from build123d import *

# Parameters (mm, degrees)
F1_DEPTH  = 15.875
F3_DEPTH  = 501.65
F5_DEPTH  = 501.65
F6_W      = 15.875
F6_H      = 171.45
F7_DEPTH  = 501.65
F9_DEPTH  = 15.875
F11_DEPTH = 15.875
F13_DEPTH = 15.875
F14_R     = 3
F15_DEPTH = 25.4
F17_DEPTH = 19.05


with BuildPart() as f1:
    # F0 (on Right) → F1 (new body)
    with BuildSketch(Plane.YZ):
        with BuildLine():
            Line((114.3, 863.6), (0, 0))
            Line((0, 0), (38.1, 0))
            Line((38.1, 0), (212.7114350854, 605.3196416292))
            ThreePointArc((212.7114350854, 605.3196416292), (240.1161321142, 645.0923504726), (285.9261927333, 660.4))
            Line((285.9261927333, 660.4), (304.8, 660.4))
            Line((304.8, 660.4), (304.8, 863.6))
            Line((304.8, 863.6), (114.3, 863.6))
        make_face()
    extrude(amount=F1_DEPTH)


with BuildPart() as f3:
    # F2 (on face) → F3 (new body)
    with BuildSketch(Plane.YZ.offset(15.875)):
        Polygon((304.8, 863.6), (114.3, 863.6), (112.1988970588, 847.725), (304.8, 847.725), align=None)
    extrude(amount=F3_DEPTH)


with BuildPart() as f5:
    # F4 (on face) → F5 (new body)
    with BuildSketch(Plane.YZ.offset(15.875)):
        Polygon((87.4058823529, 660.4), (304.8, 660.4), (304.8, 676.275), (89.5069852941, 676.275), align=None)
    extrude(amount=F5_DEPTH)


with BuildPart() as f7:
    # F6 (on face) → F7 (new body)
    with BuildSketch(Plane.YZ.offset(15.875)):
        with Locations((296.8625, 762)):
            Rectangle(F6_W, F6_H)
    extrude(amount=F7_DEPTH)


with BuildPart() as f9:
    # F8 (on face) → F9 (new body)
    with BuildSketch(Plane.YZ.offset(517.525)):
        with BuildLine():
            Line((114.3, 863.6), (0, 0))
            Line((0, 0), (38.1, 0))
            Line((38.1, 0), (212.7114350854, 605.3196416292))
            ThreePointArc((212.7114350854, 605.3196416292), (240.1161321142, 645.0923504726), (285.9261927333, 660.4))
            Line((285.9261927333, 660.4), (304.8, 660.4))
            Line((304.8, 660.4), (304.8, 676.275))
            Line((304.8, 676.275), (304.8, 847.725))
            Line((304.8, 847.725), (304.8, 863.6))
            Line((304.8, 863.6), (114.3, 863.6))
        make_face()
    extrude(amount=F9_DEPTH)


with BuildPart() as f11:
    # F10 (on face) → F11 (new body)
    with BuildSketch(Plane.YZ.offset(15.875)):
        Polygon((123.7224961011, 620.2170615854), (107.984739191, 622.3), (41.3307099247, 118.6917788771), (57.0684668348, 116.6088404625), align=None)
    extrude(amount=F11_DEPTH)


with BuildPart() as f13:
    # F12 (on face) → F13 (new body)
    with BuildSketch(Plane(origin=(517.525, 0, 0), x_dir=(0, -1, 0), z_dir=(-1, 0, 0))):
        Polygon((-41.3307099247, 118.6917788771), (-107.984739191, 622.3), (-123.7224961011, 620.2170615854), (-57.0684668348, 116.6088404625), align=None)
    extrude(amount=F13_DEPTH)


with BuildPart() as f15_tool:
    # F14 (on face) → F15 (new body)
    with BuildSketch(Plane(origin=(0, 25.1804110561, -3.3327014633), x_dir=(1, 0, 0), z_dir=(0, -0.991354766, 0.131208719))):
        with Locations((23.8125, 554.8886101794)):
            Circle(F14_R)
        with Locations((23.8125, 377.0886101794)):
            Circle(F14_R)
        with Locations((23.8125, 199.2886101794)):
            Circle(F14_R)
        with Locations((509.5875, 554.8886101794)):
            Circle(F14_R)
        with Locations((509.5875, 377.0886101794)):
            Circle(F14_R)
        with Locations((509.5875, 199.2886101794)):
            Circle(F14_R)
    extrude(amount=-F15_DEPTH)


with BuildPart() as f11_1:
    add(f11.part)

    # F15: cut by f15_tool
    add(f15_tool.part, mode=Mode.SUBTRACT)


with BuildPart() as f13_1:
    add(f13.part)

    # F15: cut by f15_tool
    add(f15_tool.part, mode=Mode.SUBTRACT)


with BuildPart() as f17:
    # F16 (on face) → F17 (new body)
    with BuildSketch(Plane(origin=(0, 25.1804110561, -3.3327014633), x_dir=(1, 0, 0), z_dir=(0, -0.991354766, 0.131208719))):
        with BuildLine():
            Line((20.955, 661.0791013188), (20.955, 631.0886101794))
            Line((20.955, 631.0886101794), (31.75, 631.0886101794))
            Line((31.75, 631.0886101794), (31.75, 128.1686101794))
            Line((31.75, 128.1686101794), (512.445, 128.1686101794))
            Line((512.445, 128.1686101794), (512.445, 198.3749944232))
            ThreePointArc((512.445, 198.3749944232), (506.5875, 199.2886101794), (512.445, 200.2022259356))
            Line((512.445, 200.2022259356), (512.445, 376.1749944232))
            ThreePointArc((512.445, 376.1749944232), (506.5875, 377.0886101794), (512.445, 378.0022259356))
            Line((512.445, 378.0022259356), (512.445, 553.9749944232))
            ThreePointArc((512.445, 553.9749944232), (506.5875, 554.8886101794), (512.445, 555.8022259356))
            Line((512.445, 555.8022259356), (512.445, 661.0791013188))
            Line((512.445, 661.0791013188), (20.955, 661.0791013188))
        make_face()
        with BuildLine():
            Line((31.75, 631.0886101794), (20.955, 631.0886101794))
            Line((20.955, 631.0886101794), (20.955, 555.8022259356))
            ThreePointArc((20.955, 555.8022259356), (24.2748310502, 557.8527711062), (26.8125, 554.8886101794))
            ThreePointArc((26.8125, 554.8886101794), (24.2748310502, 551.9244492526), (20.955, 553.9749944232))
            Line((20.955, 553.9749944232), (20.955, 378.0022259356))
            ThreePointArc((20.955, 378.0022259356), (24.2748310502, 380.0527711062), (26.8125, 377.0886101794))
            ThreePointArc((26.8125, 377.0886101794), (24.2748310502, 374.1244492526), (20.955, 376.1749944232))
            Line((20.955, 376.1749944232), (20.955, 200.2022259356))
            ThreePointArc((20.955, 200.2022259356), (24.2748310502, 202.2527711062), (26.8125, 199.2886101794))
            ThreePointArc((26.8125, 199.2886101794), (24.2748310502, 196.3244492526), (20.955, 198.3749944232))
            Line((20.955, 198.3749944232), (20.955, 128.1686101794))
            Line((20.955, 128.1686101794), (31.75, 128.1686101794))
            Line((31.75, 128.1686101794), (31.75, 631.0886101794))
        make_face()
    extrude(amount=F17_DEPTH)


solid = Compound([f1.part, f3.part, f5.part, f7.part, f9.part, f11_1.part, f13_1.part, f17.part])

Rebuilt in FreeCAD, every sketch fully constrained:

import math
import FreeCAD as App
import Part
import Sketcher
Q = App.Units.Quantity


def add_polygon(sketch, points):
    """Adds a closed chain of lines whose ends are joined by coincident constraints."""
    first, n = sketch.GeometryCount, len(points)
    for a, b in zip(points, points[1:] + points[:1]):
        sketch.addGeometry(Part.LineSegment(App.Vector(*a, 0), App.Vector(*b, 0)), False)
    for i in range(n):
        sketch.addConstraint(Sketcher.Constraint("Coincident", first + i, 2, first + (i + 1) % n, 1))

doc = App.newDocument("Part")
params = doc.addObject("Spreadsheet::Sheet", "Params")
for row, (alias, value) in enumerate([
    ("sketch1_radius", "3 in"),
    ("sketch1_height", "8 in"),
    ("sketch1_width", "1.5 in"),
    ("sketch1_width2", "7.5 in"),
    ("pad1_length", "0.625 in"),
    ("sketch2_width", "7.5 in"),
    ("sketch2_height", "0.625 in"),
    ("pad2_length", "19.75 in"),
    ("sketch3_height", "0.625 in"),
    ("pad3_length", "19.75 in"),
    ("sketch4_height", "6.75 in"),
    ("sketch4_width", "0.625 in"),
    ("pad4_length", "19.75 in"),
    ("sketch5_radius", "3 in"),
    ("sketch5_height", "8 in"),
    ("sketch5_width", "1.5 in"),
    ("sketch5_width2", "7.5 in"),
    ("pad5_length", "0.625 in"),
    ("sketch6_length", "20 in"),
    ("sketch6_length2", "0.625 in"),
    ("pad6_length", "0.625 in"),
    ("sketch7_length", "20 in"),
    ("sketch7_length2", "0.625 in"),
    ("pad7_length", "0.625 in"),
    ("pad8_length", "1 in"),
    ("sketch9_width", "19.35 in"),
    ("pad9_length", "0.75 in"),
], start=1):
    params.set(f"A{row}", alias)
    params.set(f"B{row}", "=" + value)
    params.setAlias(f"B{row}", alias)

body = doc.addObject("PartDesign::Body", "Body")

# Sketch on YZ plane
sketch1 = body.newObject("Sketcher::SketchObject", "Sketch")
sketch1.AttachmentSupport = (doc.getObject("YZ_Plane"), [""])
sketch1.MapMode = "FlatFace"
sketch1.addGeometry(Part.LineSegment(App.Vector(114, 864, 0), App.Vector(0, 0, 0)), False)
sketch1.addGeometry(Part.LineSegment(App.Vector(0, 0, 0), App.Vector(38, 0, 0)), False)
sketch1.addGeometry(Part.LineSegment(App.Vector(38, 0, 0), App.Vector(213, 605, 0)), False)
sketch1.addGeometry(Part.ArcOfCircle(Part.Circle(App.Vector(286, 584, 0), App.Vector(0, 0, 1), 76), math.radians(90), math.radians(164)), False)
sketch1.addGeometry(Part.LineSegment(App.Vector(286, 660, 0), App.Vector(305, 660, 0)), False)
sketch1.addGeometry(Part.LineSegment(App.Vector(305, 660, 0), App.Vector(305, 864, 0)), False)
sketch1.addGeometry(Part.LineSegment(App.Vector(305, 864, 0), App.Vector(114, 864, 0)), False)
sketch1.addConstraint(Sketcher.Constraint("Coincident", 0, 2, 1, 1))
sketch1.addConstraint(Sketcher.Constraint("Coincident", 1, 2, 2, 1))
sketch1.addConstraint(Sketcher.Constraint("Tangent", 2, 2, 3, 2))
sketch1.addConstraint(Sketcher.Constraint("Tangent", 3, 1, 4, 1))
sketch1.addConstraint(Sketcher.Constraint("Coincident", 4, 2, 5, 1))
sketch1.addConstraint(Sketcher.Constraint("Coincident", 5, 2, 6, 1))
sketch1.addConstraint(Sketcher.Constraint("Coincident", 6, 2, 0, 1))
sketch1.addConstraint(Sketcher.Constraint("Horizontal", 1))
sketch1.addConstraint(Sketcher.Constraint("Horizontal", 4))
sketch1.addConstraint(Sketcher.Constraint("Vertical", 5))
sketch1.addConstraint(Sketcher.Constraint("Horizontal", 6))
sketch1.addConstraint(Sketcher.Constraint("Coincident", 0, 2, -1, 1))
sketch1.addConstraint(Sketcher.Constraint("Radius", 3, Q("3 in")))
sketch1.addConstraint(Sketcher.Constraint("DistanceY", 5, 1, 5, 2, Q("8 in")))
sketch1.addConstraint(Sketcher.Constraint("DistanceX", 1, 1, 1, 2, Q("1.5 in")))
sketch1.addConstraint(Sketcher.Constraint("DistanceX", 6, 2, 6, 1, Q("7.5 in")))
sketch1.addConstraint(Sketcher.Constraint("DistanceY", -1, 1, 3, 3, Q("23 in")))
sketch1.addConstraint(Sketcher.Constraint("DistanceX", -1, 1, 4, 2, Q("12 in")))
sketch1.addConstraint(Sketcher.Constraint("Distance", 2, Q("630.000811 mm")))
sketch1.setExpression("Constraints[12]", "Params.sketch1_radius")
sketch1.setExpression("Constraints[13]", "Params.sketch1_height")
sketch1.setExpression("Constraints[14]", "Params.sketch1_width")
sketch1.setExpression("Constraints[15]", "Params.sketch1_width2")
pad1 = body.newObject("PartDesign::Pad", "Pad")
pad1.Profile = sketch1
pad1.setExpression("Length", "Params.pad1_length")
body2 = doc.addObject("PartDesign::Body", "Body001")

# Sketch on YZ plane
sketch2 = body2.newObject("Sketcher::SketchObject", "Sketch001")
sketch2.AttachmentSupport = (doc.getObject("YZ_Plane001"), [""])
sketch2.MapMode = "FlatFace"
sketch2.AttachmentOffset = App.Placement(App.Vector(0, 0, 0.625 * 25.4), App.Rotation())
add_polygon(sketch2, [(305, 864), (114, 864), (112, 848), (305, 848)])  # lines 0-3
sketch2.addConstraint(Sketcher.Constraint("Horizontal", 0))
sketch2.addConstraint(Sketcher.Constraint("Horizontal", 2))
sketch2.addConstraint(Sketcher.Constraint("Vertical", 3))
sketch2.addConstraint(Sketcher.Constraint("DistanceX", 0, 2, 0, 1, Q("7.5 in")))
sketch2.addConstraint(Sketcher.Constraint("DistanceY", -1, 1, 0, 2, Q("34 in")))
sketch2.addConstraint(Sketcher.Constraint("DistanceX", -1, 1, 2, 2, Q("12 in")))
sketch2.addConstraint(Sketcher.Constraint("DistanceY", 3, 1, 3, 2, Q("0.625 in")))
sketch2.addConstraint(Sketcher.Constraint("Distance", 1, Q("16.01344 mm")))
sketch2.setExpression("Constraints[7]", "Params.sketch2_width")
sketch2.setExpression("Constraints[10]", "Params.sketch2_height")
pad2 = body2.newObject("PartDesign::Pad", "Pad001")
pad2.Profile = sketch2
pad2.setExpression("Length", "Params.pad2_length")
body3 = doc.addObject("PartDesign::Body", "Body002")

# Sketch on YZ plane
sketch3 = body3.newObject("Sketcher::SketchObject", "Sketch002")
sketch3.AttachmentSupport = (doc.getObject("YZ_Plane002"), [""])
sketch3.MapMode = "FlatFace"
sketch3.AttachmentOffset = App.Placement(App.Vector(0, 0, 0.625 * 25.4), App.Rotation())
add_polygon(sketch3, [(87, 660), (305, 660), (305, 676), (90, 676)])  # lines 0-3
sketch3.addConstraint(Sketcher.Constraint("Horizontal", 0))
sketch3.addConstraint(Sketcher.Constraint("Vertical", 1))
sketch3.addConstraint(Sketcher.Constraint("Horizontal", 2))
sketch3.addConstraint(Sketcher.Constraint("DistanceX", -1, 1, 0, 2, Q("12 in")))
sketch3.addConstraint(Sketcher.Constraint("DistanceY", -1, 1, 0, 2, Q("26 in")))
sketch3.addConstraint(Sketcher.Constraint("DistanceY", 1, 1, 1, 2, Q("0.625 in")))
sketch3.addConstraint(Sketcher.Constraint("Distance", 3, Q("16.01344 mm")))
sketch3.addConstraint(Sketcher.Constraint("DistanceX", 0, 1, 0, 2, Q("217.394118 mm")))
sketch3.setExpression("Constraints[9]", "Params.sketch3_height")
pad3 = body3.newObject("PartDesign::Pad", "Pad002")
pad3.Profile = sketch3
pad3.setExpression("Length", "Params.pad3_length")
body4 = doc.addObject("PartDesign::Body", "Body003")

# Sketch on YZ plane
sketch4 = body4.newObject("Sketcher::SketchObject", "Sketch003")
sketch4.AttachmentSupport = (doc.getObject("YZ_Plane003"), [""])
sketch4.MapMode = "FlatFace"
sketch4.AttachmentOffset = App.Placement(App.Vector(0, 0, 0.625 * 25.4), App.Rotation())
add_polygon(sketch4, [(289, 848), (289, 676), (305, 676), (305, 848)])  # lines 0-3
sketch4.addConstraint(Sketcher.Constraint("Vertical", 0))
sketch4.addConstraint(Sketcher.Constraint("Horizontal", 1))
sketch4.addConstraint(Sketcher.Constraint("Vertical", 2))
sketch4.addConstraint(Sketcher.Constraint("Horizontal", 3))
sketch4.addConstraint(Sketcher.Constraint("DistanceX", -1, 1, 1, 2, Q("12 in")))
sketch4.addConstraint(Sketcher.Constraint("DistanceY", 0, 2, 0, 1, Q("6.75 in")))
sketch4.addConstraint(Sketcher.Constraint("DistanceX", 1, 1, 1, 2, Q("0.625 in")))
sketch4.addConstraint(Sketcher.Constraint("DistanceY", -1, 1, 0, 2, Q("26.625 in")))
sketch4.setExpression("Constraints[9]", "Params.sketch4_height")
sketch4.setExpression("Constraints[10]", "Params.sketch4_width")
pad4 = body4.newObject("PartDesign::Pad", "Pad003")
pad4.Profile = sketch4
pad4.setExpression("Length", "Params.pad4_length")
body5 = doc.addObject("PartDesign::Body", "Body004")

# Sketch on YZ plane
sketch5 = body5.newObject("Sketcher::SketchObject", "Sketch004")
sketch5.AttachmentSupport = (doc.getObject("YZ_Plane004"), [""])
sketch5.MapMode = "FlatFace"
sketch5.AttachmentOffset = App.Placement(App.Vector(0, 0, 20.375 * 25.4), App.Rotation())
sketch5.addGeometry(Part.LineSegment(App.Vector(114, 864, 0), App.Vector(0, 0, 0)), False)
sketch5.addGeometry(Part.LineSegment(App.Vector(0, 0, 0), App.Vector(38, 0, 0)), False)
sketch5.addGeometry(Part.LineSegment(App.Vector(38, 0, 0), App.Vector(213, 605, 0)), False)
sketch5.addGeometry(Part.ArcOfCircle(Part.Circle(App.Vector(286, 584, 0), App.Vector(0, 0, 1), 76), math.radians(90), math.radians(164)), False)
sketch5.addGeometry(Part.LineSegment(App.Vector(286, 660, 0), App.Vector(305, 660, 0)), False)
sketch5.addGeometry(Part.LineSegment(App.Vector(305, 660, 0), App.Vector(305, 864, 0)), False)
sketch5.addGeometry(Part.LineSegment(App.Vector(305, 864, 0), App.Vector(114, 864, 0)), False)
sketch5.addConstraint(Sketcher.Constraint("Coincident", 0, 2, 1, 1))
sketch5.addConstraint(Sketcher.Constraint("Coincident", 1, 2, 2, 1))
sketch5.addConstraint(Sketcher.Constraint("Tangent", 2, 2, 3, 2))
sketch5.addConstraint(Sketcher.Constraint("Tangent", 3, 1, 4, 1))
sketch5.addConstraint(Sketcher.Constraint("Coincident", 4, 2, 5, 1))
sketch5.addConstraint(Sketcher.Constraint("Coincident", 5, 2, 6, 1))
sketch5.addConstraint(Sketcher.Constraint("Coincident", 6, 2, 0, 1))
sketch5.addConstraint(Sketcher.Constraint("Horizontal", 1))
sketch5.addConstraint(Sketcher.Constraint("Horizontal", 4))
sketch5.addConstraint(Sketcher.Constraint("Vertical", 5))
sketch5.addConstraint(Sketcher.Constraint("Horizontal", 6))
sketch5.addConstraint(Sketcher.Constraint("Coincident", 0, 2, -1, 1))
sketch5.addConstraint(Sketcher.Constraint("Radius", 3, Q("3 in")))
sketch5.addConstraint(Sketcher.Constraint("DistanceY", 5, 1, 5, 2, Q("8 in")))
sketch5.addConstraint(Sketcher.Constraint("DistanceX", 1, 1, 1, 2, Q("1.5 in")))
sketch5.addConstraint(Sketcher.Constraint("DistanceX", 6, 2, 6, 1, Q("7.5 in")))
sketch5.addConstraint(Sketcher.Constraint("DistanceY", -1, 1, 3, 3, Q("23 in")))
sketch5.addConstraint(Sketcher.Constraint("DistanceX", -1, 1, 4, 2, Q("12 in")))
sketch5.addConstraint(Sketcher.Constraint("Distance", 2, Q("630.000811 mm")))
sketch5.setExpression("Constraints[12]", "Params.sketch5_radius")
sketch5.setExpression("Constraints[13]", "Params.sketch5_height")
sketch5.setExpression("Constraints[14]", "Params.sketch5_width")
sketch5.setExpression("Constraints[15]", "Params.sketch5_width2")
pad5 = body5.newObject("PartDesign::Pad", "Pad004")
pad5.Profile = sketch5
pad5.setExpression("Length", "Params.pad5_length")
body6 = doc.addObject("PartDesign::Body", "Body005")

# Sketch on YZ plane
sketch6 = body6.newObject("Sketcher::SketchObject", "Sketch005")
sketch6.AttachmentSupport = (doc.getObject("YZ_Plane005"), [""])
sketch6.MapMode = "FlatFace"
sketch6.AttachmentOffset = App.Placement(App.Vector(0, 0, 0.625 * 25.4), App.Rotation())
add_polygon(sketch6, [(124, 620), (108, 622), (41, 119), (57, 117)])  # lines 0-3
sketch6.addConstraint(Sketcher.Constraint("Perpendicular", 0, 1))
sketch6.addConstraint(Sketcher.Constraint("Perpendicular", 1, 2))
sketch6.addConstraint(Sketcher.Constraint("Perpendicular", 2, 3))
sketch6.addConstraint(Sketcher.Constraint("Distance", 1, Q("20 in")))
sketch6.addConstraint(Sketcher.Constraint("DistanceY", -1, 1, 0, 2, Q("24.5 in")))
sketch6.addConstraint(Sketcher.Constraint("Distance", 0, Q("0.625 in")))
sketch6.addConstraint(Sketcher.Constraint("DistanceX", -1, 1, 0, 2, Q("107.984739 mm")))
sketch6.addConstraint(Sketcher.Constraint("DistanceX", -1, 1, 1, 2, Q("41.33071 mm")))
sketch6.setExpression("Constraints[7]", "Params.sketch6_length")
sketch6.setExpression("Constraints[9]", "Params.sketch6_length2")
pad6 = body6.newObject("PartDesign::Pad", "Pad005")
pad6.Profile = sketch6
pad6.setExpression("Length", "Params.pad6_length")
body7 = doc.addObject("PartDesign::Body", "Body006")

# Sketch on YZ plane
sketch7 = body7.newObject("Sketcher::SketchObject", "Sketch006")
sketch7.AttachmentSupport = (doc.getObject("YZ_Plane006"), [""])
sketch7.MapMode = "FlatFace"
sketch7.AttachmentOffset = App.Placement(App.Vector(0, 0, 20.375 * 25.4), App.Rotation())
add_polygon(sketch7, [(41, 119), (108, 622), (124, 620), (57, 117)])  # lines 0-3
sketch7.addConstraint(Sketcher.Constraint("Perpendicular", 0, 1))
sketch7.addConstraint(Sketcher.Constraint("Perpendicular", 1, 2))
sketch7.addConstraint(Sketcher.Constraint("Perpendicular", 2, 3))
sketch7.addConstraint(Sketcher.Constraint("Distance", 0, Q("20 in")))
sketch7.addConstraint(Sketcher.Constraint("DistanceY", -1, 1, 0, 2, Q("24.5 in")))
sketch7.addConstraint(Sketcher.Constraint("Distance", 1, Q("0.625 in")))
sketch7.addConstraint(Sketcher.Constraint("DistanceX", -1, 1, 0, 2, Q("107.984739 mm")))
sketch7.addConstraint(Sketcher.Constraint("DistanceY", -1, 1, 1, 2, Q("620.217062 mm")))
sketch7.setExpression("Constraints[7]", "Params.sketch7_length")
sketch7.setExpression("Constraints[9]", "Params.sketch7_length2")
pad7 = body7.newObject("PartDesign::Pad", "Pad006")
pad7.Profile = sketch7
pad7.setExpression("Length", "Params.pad7_length")
pad7.Reversed = True
body8 = doc.addObject("PartDesign::Body", "Body007")
body8.AllowCompound = True

# Sketch on an angled plane
sketch8 = body8.newObject("Sketcher::SketchObject", "Sketch007")
sketch8.Placement = App.Placement(App.Vector(0, 25.180411, -3.332701), App.Rotation(App.Vector(1, 0, 0), App.Vector(0, 0.131208719, 0.991354766), App.Vector(0, -0.991354766, 0.131208719), "ZXY"))
sketch8.addGeometry(Part.Circle(App.Vector(23.8, 554.9, 0), App.Vector(0, 0, 1), 3), False)
sketch8.addGeometry(Part.Circle(App.Vector(23.8, 377.1, 0), App.Vector(0, 0, 1), 3), False)
sketch8.addGeometry(Part.Circle(App.Vector(23.8, 199.3, 0), App.Vector(0, 0, 1), 3), False)
sketch8.addGeometry(Part.Circle(App.Vector(509.6, 554.9, 0), App.Vector(0, 0, 1), 3), False)
sketch8.addGeometry(Part.Circle(App.Vector(509.6, 377.1, 0), App.Vector(0, 0, 1), 3), False)
sketch8.addGeometry(Part.Circle(App.Vector(509.6, 199.3, 0), App.Vector(0, 0, 1), 3), False)
sketch8.addConstraint(Sketcher.Constraint("Equal", 0, 1))
sketch8.addConstraint(Sketcher.Constraint("Equal", 1, 2))
sketch8.addConstraint(Sketcher.Constraint("Equal", 2, 3))
sketch8.addConstraint(Sketcher.Constraint("Equal", 3, 4))
sketch8.addConstraint(Sketcher.Constraint("Equal", 4, 5))
sketch8.addConstraint(Sketcher.Constraint("Horizontal", 0, 3, 3, 3))
sketch8.addConstraint(Sketcher.Constraint("Horizontal", 1, 3, 4, 3))
sketch8.addConstraint(Sketcher.Constraint("Horizontal", 2, 3, 5, 3))
sketch8.addConstraint(Sketcher.Constraint("Vertical", 0, 3, 1, 3))
sketch8.addConstraint(Sketcher.Constraint("Vertical", 1, 3, 2, 3))
sketch8.addConstraint(Sketcher.Constraint("Vertical", 3, 3, 4, 3))
sketch8.addConstraint(Sketcher.Constraint("Vertical", 4, 3, 5, 3))
sketch8.addConstraint(Sketcher.Constraint("DistanceY", 1, 3, 0, 3, Q("7 in")))
sketch8.addConstraint(Sketcher.Constraint("DistanceY", 2, 3, 1, 3, Q("7 in")))
sketch8.addConstraint(Sketcher.Constraint("Diameter", 0, Q("6 mm")))
sketch8.addConstraint(Sketcher.Constraint("DistanceX", -1, 1, 0, 3, Q("0.9375 in")))
sketch8.addConstraint(Sketcher.Constraint("DistanceX", -1, 1, 3, 3, Q("20.0625 in")))
sketch8.addConstraint(Sketcher.Constraint("DistanceY", -1, 1, 0, 3, Q("554.88861 mm")))
pad8 = body8.newObject("PartDesign::Pad", "Pad007")
pad8.Profile = sketch8
pad8.setExpression("Length", "Params.pad8_length")
pad8.Reversed = True
doc.recompute()

body9 = doc.addObject("PartDesign::Body", "Body008")
body9.BaseFeature = body8
boolean = body6.newObject("PartDesign::Boolean", "Boolean")
boolean.Type = "Cut"
boolean.addObjects([body9])
doc.recompute()

boolean2 = body7.newObject("PartDesign::Boolean", "Boolean001")
boolean2.Type = "Cut"
boolean2.addObjects([body8])
body10 = doc.addObject("PartDesign::Body", "Body009")

# Sketch on an angled plane
sketch9 = body10.newObject("Sketcher::SketchObject", "Sketch008")
sketch9.Placement = App.Placement(App.Vector(0, 25.180411, -3.332701), App.Rotation(App.Vector(1, 0, 0), App.Vector(0, 0.131208719, 0.991354766), App.Vector(0, -0.991354766, 0.131208719), "ZXY"))
sketch9.addGeometry(Part.LineSegment(App.Vector(21, 661.1, 0), App.Vector(21, 555.8, 0)), False)
sketch9.addGeometry(Part.ArcOfCircle(Part.Circle(App.Vector(23.8, 554.9, 0), App.Vector(0, 0, 1), 3), math.radians(0), math.radians(162)), False)
sketch9.addGeometry(Part.ArcOfCircle(Part.Circle(App.Vector(23.8, 554.9, 0), App.Vector(0, 0, 1), 3), math.radians(-162), math.radians(0)), False)
sketch9.addGeometry(Part.LineSegment(App.Vector(21, 554, 0), App.Vector(21, 378, 0)), False)
sketch9.addGeometry(Part.ArcOfCircle(Part.Circle(App.Vector(23.8, 377.1, 0), App.Vector(0, 0, 1), 3), math.radians(0), math.radians(162)), False)
sketch9.addGeometry(Part.ArcOfCircle(Part.Circle(App.Vector(23.8, 377.1, 0), App.Vector(0, 0, 1), 3), math.radians(-162), math.radians(0)), False)
sketch9.addGeometry(Part.LineSegment(App.Vector(21, 376.2, 0), App.Vector(21, 200.2, 0)), False)
sketch9.addGeometry(Part.ArcOfCircle(Part.Circle(App.Vector(23.8, 199.3, 0), App.Vector(0, 0, 1), 3), math.radians(0), math.radians(162)), False)
sketch9.addGeometry(Part.ArcOfCircle(Part.Circle(App.Vector(23.8, 199.3, 0), App.Vector(0, 0, 1), 3), math.radians(-162), math.radians(0)), False)
sketch9.addGeometry(Part.LineSegment(App.Vector(21, 198.4, 0), App.Vector(21, 128.2, 0)), False)
sketch9.addGeometry(Part.LineSegment(App.Vector(21, 128.2, 0), App.Vector(512.4, 128.2, 0)), False)
sketch9.addGeometry(Part.LineSegment(App.Vector(512.4, 128.2, 0), App.Vector(512.4, 198.4, 0)), False)
sketch9.addGeometry(Part.ArcOfCircle(Part.Circle(App.Vector(509.6, 199.3, 0), App.Vector(0, 0, 1), 3), math.radians(18), math.radians(342)), False)
sketch9.addGeometry(Part.LineSegment(App.Vector(512.4, 200.2, 0), App.Vector(512.4, 376.2, 0)), False)
sketch9.addGeometry(Part.ArcOfCircle(Part.Circle(App.Vector(509.6, 377.1, 0), App.Vector(0, 0, 1), 3), math.radians(18), math.radians(342)), False)
sketch9.addGeometry(Part.LineSegment(App.Vector(512.4, 378, 0), App.Vector(512.4, 554, 0)), False)
sketch9.addGeometry(Part.ArcOfCircle(Part.Circle(App.Vector(509.6, 554.9, 0), App.Vector(0, 0, 1), 3), math.radians(18), math.radians(342)), False)
sketch9.addGeometry(Part.LineSegment(App.Vector(512.4, 555.8, 0), App.Vector(512.4, 661.1, 0)), False)
sketch9.addGeometry(Part.LineSegment(App.Vector(512.4, 661.1, 0), App.Vector(21, 661.1, 0)), False)
sketch9.addConstraint(Sketcher.Constraint("Coincident", 0, 2, 1, 2))
sketch9.addConstraint(Sketcher.Constraint("Tangent", 1, 1, 2, 2))
sketch9.addConstraint(Sketcher.Constraint("Coincident", 2, 1, 3, 1))
sketch9.addConstraint(Sketcher.Constraint("Coincident", 3, 2, 4, 2))
sketch9.addConstraint(Sketcher.Constraint("Tangent", 4, 1, 5, 2))
sketch9.addConstraint(Sketcher.Constraint("Coincident", 5, 1, 6, 1))
sketch9.addConstraint(Sketcher.Constraint("Coincident", 6, 2, 7, 2))
sketch9.addConstraint(Sketcher.Constraint("Tangent", 7, 1, 8, 2))
sketch9.addConstraint(Sketcher.Constraint("Coincident", 8, 1, 9, 1))
sketch9.addConstraint(Sketcher.Constraint("Coincident", 9, 2, 10, 1))
sketch9.addConstraint(Sketcher.Constraint("Coincident", 10, 2, 11, 1))
sketch9.addConstraint(Sketcher.Constraint("Coincident", 11, 2, 12, 2))
sketch9.addConstraint(Sketcher.Constraint("Coincident", 12, 1, 13, 1))
sketch9.addConstraint(Sketcher.Constraint("Coincident", 13, 2, 14, 2))
sketch9.addConstraint(Sketcher.Constraint("Coincident", 14, 1, 15, 1))
sketch9.addConstraint(Sketcher.Constraint("Coincident", 15, 2, 16, 2))
sketch9.addConstraint(Sketcher.Constraint("Coincident", 16, 1, 17, 1))
sketch9.addConstraint(Sketcher.Constraint("Coincident", 17, 2, 18, 1))
sketch9.addConstraint(Sketcher.Constraint("Coincident", 18, 2, 0, 1))
sketch9.addConstraint(Sketcher.Constraint("Vertical", 0))
sketch9.addConstraint(Sketcher.Constraint("Vertical", 3))
sketch9.addConstraint(Sketcher.Constraint("Vertical", 6))
sketch9.addConstraint(Sketcher.Constraint("Vertical", 9))
sketch9.addConstraint(Sketcher.Constraint("Horizontal", 10))
sketch9.addConstraint(Sketcher.Constraint("Vertical", 11))
sketch9.addConstraint(Sketcher.Constraint("Vertical", 13))
sketch9.addConstraint(Sketcher.Constraint("Vertical", 15))
sketch9.addConstraint(Sketcher.Constraint("Vertical", 17))
sketch9.addConstraint(Sketcher.Constraint("Horizontal", 18))
sketch9.addConstraint(Sketcher.Constraint("Equal", 1, 2))
sketch9.addConstraint(Sketcher.Constraint("Equal", 2, 4))
sketch9.addConstraint(Sketcher.Constraint("Equal", 4, 5))
sketch9.addConstraint(Sketcher.Constraint("Equal", 5, 7))
sketch9.addConstraint(Sketcher.Constraint("Equal", 7, 8))
sketch9.addConstraint(Sketcher.Constraint("Equal", 8, 12))
sketch9.addConstraint(Sketcher.Constraint("Equal", 12, 14))
sketch9.addConstraint(Sketcher.Constraint("Equal", 14, 16))
sketch9.addConstraint(Sketcher.Constraint("Horizontal", 8, 3, 12, 3))
sketch9.addConstraint(Sketcher.Constraint("Horizontal", 5, 3, 14, 3))
sketch9.addConstraint(Sketcher.Constraint("Horizontal", 2, 3, 16, 3))
sketch9.addConstraint(Sketcher.Constraint("Horizontal", 16, 3, 1, 1))
sketch9.addConstraint(Sketcher.Constraint("Horizontal", 14, 3, 4, 1))
sketch9.addConstraint(Sketcher.Constraint("Horizontal", 12, 3, 7, 1))
sketch9.addConstraint(Sketcher.Constraint("Horizontal", 8, 1, 11, 2))
sketch9.addConstraint(Sketcher.Constraint("Horizontal", 6, 2, 12, 1))
sketch9.addConstraint(Sketcher.Constraint("Horizontal", 5, 1, 13, 2))
sketch9.addConstraint(Sketcher.Constraint("Horizontal", 3, 2, 14, 1))
sketch9.addConstraint(Sketcher.Constraint("Horizontal", 2, 1, 15, 2))
sketch9.addConstraint(Sketcher.Constraint("Horizontal", 0, 2, 16, 1))
sketch9.addConstraint(Sketcher.Constraint("Vertical", 2, 3, 4, 3))
sketch9.addConstraint(Sketcher.Constraint("Vertical", 5, 3, 7, 3))
sketch9.addConstraint(Sketcher.Constraint("Vertical", 0, 2, 2, 1))
sketch9.addConstraint(Sketcher.Constraint("Vertical", 3, 2, 5, 1))
sketch9.addConstraint(Sketcher.Constraint("Vertical", 6, 2, 8, 1))
sketch9.addConstraint(Sketcher.Constraint("Equal", 3, 6))
sketch9.addConstraint(Sketcher.Constraint("DistanceY", 4, 3, 1, 3, Q("7 in")))
sketch9.addConstraint(Sketcher.Constraint("DistanceX", 10, 1, 10, 2, Q("19.35 in")))
sketch9.addConstraint(Sketcher.Constraint("DistanceY", 9, 2, 7, 3, Q("2.8 in")))
sketch9.addConstraint(Sketcher.Constraint("Radius", 1, Q("3 mm")))
sketch9.addConstraint(Sketcher.Constraint("DistanceX", -1, 1, 1, 3, Q("0.9375 in")))
sketch9.addConstraint(Sketcher.Constraint("DistanceX", -1, 1, 12, 3, Q("20.0625 in")))
sketch9.addConstraint(Sketcher.Constraint("DistanceY", -1, 1, 17, 2, Q("661.079101 mm")))
sketch9.addConstraint(Sketcher.Constraint("DistanceY", 0, 2, 0, 1, Q("105.276875 mm")))
sketch9.setExpression("Constraints[56]", "Params.sketch9_width")
pad9 = body10.newObject("PartDesign::Pad", "Pad008")
pad9.Profile = sketch9
pad9.setExpression("Length", "Params.pad9_length")

doc.recompute()
